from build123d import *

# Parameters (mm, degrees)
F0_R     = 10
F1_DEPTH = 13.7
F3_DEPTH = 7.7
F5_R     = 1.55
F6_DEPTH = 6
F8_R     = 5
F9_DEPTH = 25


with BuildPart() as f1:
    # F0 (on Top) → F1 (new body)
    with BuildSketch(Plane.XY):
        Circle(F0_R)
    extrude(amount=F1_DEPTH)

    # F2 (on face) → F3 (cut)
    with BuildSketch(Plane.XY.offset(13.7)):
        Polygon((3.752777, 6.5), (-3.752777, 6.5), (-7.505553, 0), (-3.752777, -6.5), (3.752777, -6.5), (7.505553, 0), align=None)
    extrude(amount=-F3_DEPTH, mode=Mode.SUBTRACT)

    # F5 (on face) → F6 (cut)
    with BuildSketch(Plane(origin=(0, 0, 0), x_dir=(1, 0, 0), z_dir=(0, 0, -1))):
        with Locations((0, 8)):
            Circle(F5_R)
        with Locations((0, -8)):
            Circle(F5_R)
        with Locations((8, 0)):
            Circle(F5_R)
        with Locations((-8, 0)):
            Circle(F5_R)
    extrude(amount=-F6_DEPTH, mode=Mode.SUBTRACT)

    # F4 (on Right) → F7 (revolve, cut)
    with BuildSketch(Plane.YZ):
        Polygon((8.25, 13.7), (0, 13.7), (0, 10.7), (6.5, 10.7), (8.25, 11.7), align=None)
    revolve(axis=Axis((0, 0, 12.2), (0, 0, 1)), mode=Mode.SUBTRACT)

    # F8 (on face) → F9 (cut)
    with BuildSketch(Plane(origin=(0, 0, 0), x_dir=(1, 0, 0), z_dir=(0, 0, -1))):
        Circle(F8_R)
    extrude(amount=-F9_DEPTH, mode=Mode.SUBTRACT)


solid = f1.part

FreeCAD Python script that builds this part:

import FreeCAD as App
import Part
import Sketcher

V = App.Vector
Q = App.Units.Quantity

doc = App.newDocument("Part")
body = doc.addObject("PartDesign::Body", "Body")

# Sketch on XY plane
sketch1 = body.newObject("Sketcher::SketchObject", "Sketch")
sketch1.AttachmentSupport = (doc.getObject("XY_Plane"), [""])
sketch1.MapMode = "FlatFace"
sketch1.addGeometry(Part.Circle(V(0, 0, 0), V(0, 0, 1), 10), False)
sketch1.addConstraint(Sketcher.Constraint("Coincident", 0, 3, -1, 1))
sketch1.addConstraint(Sketcher.Constraint("Diameter", 0, 20.0))
pad1 = body.newObject("PartDesign::Pad", "Pad")
pad1.Profile = sketch1
pad1.Length = 13.7

# Sketch on XY plane
sketch2 = body.newObject("Sketcher::SketchObject", "Sketch001")
sketch2.AttachmentSupport = (doc.getObject("XY_Plane"), [""])
sketch2.MapMode = "FlatFace"
sketch2.AttachmentOffset = App.Placement(V(0, 0, 13.7), App.Rotation())
sketch2.addGeometry(Part.LineSegment(V(4, 6, 0), V(-4, 6, 0)), False)
sketch2.addGeometry(Part.LineSegment(V(-4, 6, 0), V(-8, 0, 0)), False)
sketch2.addGeometry(Part.LineSegment(V(-8, 0, 0), V(-4, -6, 0)), False)
sketch2.addGeometry(Part.LineSegment(V(-4, -6, 0), V(4, -6, 0)), False)
sketch2.addGeometry(Part.LineSegment(V(4, -6, 0), V(8, 0, 0)), False)
sketch2.addGeometry(Part.LineSegment(V(8, 0, 0), V(4, 6, 0)), False)
sketch2.addConstraint(Sketcher.Constraint("Coincident", 0, 2, 1, 1))
sketch2.addConstraint(Sketcher.Constraint("Coincident", 1, 2, 2, 1))
sketch2.addConstraint(Sketcher.Constraint("Coincident", 2, 2, 3, 1))
sketch2.addConstraint(Sketcher.Constraint("Coincident", 3, 2, 4, 1))
sketch2.addConstraint(Sketcher.Constraint("Coincident", 4, 2, 5, 1))
sketch2.addConstraint(Sketcher.Constraint("Coincident", 5, 2, 0, 1))
sketch2.addConstraint(Sketcher.Constraint("Horizontal", 0))
sketch2.addConstraint(Sketcher.Constraint("Horizontal", 3))
sketch2.addConstraint(Sketcher.Constraint("Symmetric", 0, 2, 3, 2, -1, 1))
sketch2.addConstraint(Sketcher.Constraint("Symmetric", 1, 2, 4, 2, -1, 1))
sketch2.addConstraint(Sketcher.Constraint("PointOnObject", 1, 2, -1))
sketch2.addConstraint(Sketcher.Constraint("Parallel", 2, 5))
sketch2.addConstraint(Sketcher.Constraint("Vertical", 0, 2, 2, 2))
sketch2.addConstraint(Sketcher.Constraint("Angle", 1, Q("-119.999995 deg")))
sketch2.addConstraint(Sketcher.Constraint("DistanceY", 2, 2, 0, 2, 13.0))
sketch2.addConstraint(Sketcher.Constraint("DistanceX", 0, 2, 0, 1, 7.505554))
pocket1 = body.newObject("PartDesign::Pocket", "Pocket")
pocket1.Profile = sketch2
pocket1.Length = 7.7

# Sketch on XY plane
sketch3 = body.newObject("Sketcher::SketchObject", "Sketch002")
sketch3.AttachmentSupport = (doc.getObject("XY_Plane"), [""])
sketch3.MapMode = "FlatFace"
sketch3.addGeometry(Part.Circle(V(0, -8, 0), V(0, 0, 1), 1.6), False)
sketch3.addGeometry(Part.Circle(V(0, 8, 0), V(0, 0, 1), 1.6), False)
sketch3.addGeometry(Part.Circle(V(8, 0, 0), V(0, 0, 1), 1.6), False)
sketch3.addGeometry(Part.Circle(V(-8, 0, 0), V(0, 0, 1), 1.6), False)
sketch3.addConstraint(Sketcher.Constraint("Equal", 0, 1))
sketch3.addConstraint(Sketcher.Constraint("Equal", 1, 2))
sketch3.addConstraint(Sketcher.Constraint("Equal", 2, 3))
sketch3.addConstraint(Sketcher.Constraint("Symmetric", 0, 3, 1, 3, -1, 1))
sketch3.addConstraint(Sketcher.Constraint("Symmetric", 2, 3, 3, 3, -1, 1))
sketch3.addConstraint(Sketcher.Constraint("PointOnObject", 0, 3, -2))
sketch3.addConstraint(Sketcher.Constraint("PointOnObject", 2, 3, -1))
sketch3.addConstraint(Sketcher.Constraint("Diameter", 0, 3.1))
sketch3.addConstraint(Sketcher.Constraint("DistanceY", 0, 3, -1, 1, 8.0))
sketch3.addConstraint(Sketcher.Constraint("DistanceX", -1, 1, 2, 3, 8.0))
pocket2 = body.newObject("PartDesign::Pocket", "Pocket001")
pocket2.Profile = sketch3
pocket2.Length = 6
pocket2.Reversed = True

# Sketch on YZ plane
sketch4 = body.newObject("Sketcher::SketchObject", "Sketch003")
sketch4.AttachmentSupport = (doc.getObject("YZ_Plane"), [""])
sketch4.MapMode = "FlatFace"
sketch4.addGeometry(Part.LineSegment(V(8.2, 13.7, 0), V(0, 13.7, 0)), False)
sketch4.addGeometry(Part.LineSegment(V(0, 13.7, 0), V(0, 10.7, 0)), False)
sketch4.addGeometry(Part.LineSegment(V(0, 10.7, 0), V(6.5, 10.7, 0)), False)
sketch4.addGeometry(Part.LineSegment(V(6.5, 10.7, 0), V(8.2, 11.7, 0)), False)
sketch4.addGeometry(Part.LineSegment(V(8.2, 11.7, 0), V(8.2, 13.7, 0)), False)
sketch4.addConstraint(Sketcher.Constraint("Coincident", 0, 2, 1, 1))
sketch4.addConstraint(Sketcher.Constraint("Coincident", 1, 2, 2, 1))
sketch4.addConstraint(Sketcher.Constraint("Coincident", 2, 2, 3, 1))
sketch4.addConstraint(Sketcher.Constraint("Coincident", 3, 2, 4, 1))
sketch4.addConstraint(Sketcher.Constraint("Coincident", 4, 2, 0, 1))
sketch4.addConstraint(Sketcher.Constraint("Horizontal", 0))
sketch4.addConstraint(Sketcher.Constraint("Vertical", 1))
sketch4.addConstraint(Sketcher.Constraint("Horizontal", 2))
sketch4.addConstraint(Sketcher.Constraint("Vertical", 4))
sketch4.addConstraint(Sketcher.Constraint("PointOnObject", 0, 2, -2))
sketch4.addConstraint(Sketcher.Constraint("DistanceY", 1, 2, 1, 1, 3.0))
sketch4.addConstraint(Sketcher.Constraint("DistanceY", 4, 1, 4, 2, 2.0))
sketch4.addConstraint(Sketcher.Constraint("DistanceX", 2, 1, 2, 2, 6.5))
sketch4.addConstraint(Sketcher.Constraint("DistanceX", 0, 2, 0, 1, 8.25))
sketch4.addConstraint(Sketcher.Constraint("DistanceY", -1, 1, 0, 2, 13.7))
groove = body.newObject("PartDesign::Groove", "Groove")
groove.Profile = sketch4
groove.ReferenceAxis = (sketch4, ["V_Axis"])
groove.Angle = 360

# Sketch on XY plane
sketch5 = body.newObject("Sketcher::SketchObject", "Sketch004")
sketch5.AttachmentSupport = (doc.getObject("XY_Plane"), [""])
sketch5.MapMode = "FlatFace"
sketch5.addGeometry(Part.Circle(V(0, 0, 0), V(0, 0, 1), 5), False)
sketch5.addConstraint(Sketcher.Constraint("Coincident", 0, 3, -1, 1))
sketch5.addConstraint(Sketcher.Constraint("Diameter", 0, 10.0))
pocket3 = body.newObject("PartDesign::Pocket", "Pocket002")
pocket3.Profile = sketch5
pocket3.Length = 25
pocket3.Reversed = True

doc.recompute()
